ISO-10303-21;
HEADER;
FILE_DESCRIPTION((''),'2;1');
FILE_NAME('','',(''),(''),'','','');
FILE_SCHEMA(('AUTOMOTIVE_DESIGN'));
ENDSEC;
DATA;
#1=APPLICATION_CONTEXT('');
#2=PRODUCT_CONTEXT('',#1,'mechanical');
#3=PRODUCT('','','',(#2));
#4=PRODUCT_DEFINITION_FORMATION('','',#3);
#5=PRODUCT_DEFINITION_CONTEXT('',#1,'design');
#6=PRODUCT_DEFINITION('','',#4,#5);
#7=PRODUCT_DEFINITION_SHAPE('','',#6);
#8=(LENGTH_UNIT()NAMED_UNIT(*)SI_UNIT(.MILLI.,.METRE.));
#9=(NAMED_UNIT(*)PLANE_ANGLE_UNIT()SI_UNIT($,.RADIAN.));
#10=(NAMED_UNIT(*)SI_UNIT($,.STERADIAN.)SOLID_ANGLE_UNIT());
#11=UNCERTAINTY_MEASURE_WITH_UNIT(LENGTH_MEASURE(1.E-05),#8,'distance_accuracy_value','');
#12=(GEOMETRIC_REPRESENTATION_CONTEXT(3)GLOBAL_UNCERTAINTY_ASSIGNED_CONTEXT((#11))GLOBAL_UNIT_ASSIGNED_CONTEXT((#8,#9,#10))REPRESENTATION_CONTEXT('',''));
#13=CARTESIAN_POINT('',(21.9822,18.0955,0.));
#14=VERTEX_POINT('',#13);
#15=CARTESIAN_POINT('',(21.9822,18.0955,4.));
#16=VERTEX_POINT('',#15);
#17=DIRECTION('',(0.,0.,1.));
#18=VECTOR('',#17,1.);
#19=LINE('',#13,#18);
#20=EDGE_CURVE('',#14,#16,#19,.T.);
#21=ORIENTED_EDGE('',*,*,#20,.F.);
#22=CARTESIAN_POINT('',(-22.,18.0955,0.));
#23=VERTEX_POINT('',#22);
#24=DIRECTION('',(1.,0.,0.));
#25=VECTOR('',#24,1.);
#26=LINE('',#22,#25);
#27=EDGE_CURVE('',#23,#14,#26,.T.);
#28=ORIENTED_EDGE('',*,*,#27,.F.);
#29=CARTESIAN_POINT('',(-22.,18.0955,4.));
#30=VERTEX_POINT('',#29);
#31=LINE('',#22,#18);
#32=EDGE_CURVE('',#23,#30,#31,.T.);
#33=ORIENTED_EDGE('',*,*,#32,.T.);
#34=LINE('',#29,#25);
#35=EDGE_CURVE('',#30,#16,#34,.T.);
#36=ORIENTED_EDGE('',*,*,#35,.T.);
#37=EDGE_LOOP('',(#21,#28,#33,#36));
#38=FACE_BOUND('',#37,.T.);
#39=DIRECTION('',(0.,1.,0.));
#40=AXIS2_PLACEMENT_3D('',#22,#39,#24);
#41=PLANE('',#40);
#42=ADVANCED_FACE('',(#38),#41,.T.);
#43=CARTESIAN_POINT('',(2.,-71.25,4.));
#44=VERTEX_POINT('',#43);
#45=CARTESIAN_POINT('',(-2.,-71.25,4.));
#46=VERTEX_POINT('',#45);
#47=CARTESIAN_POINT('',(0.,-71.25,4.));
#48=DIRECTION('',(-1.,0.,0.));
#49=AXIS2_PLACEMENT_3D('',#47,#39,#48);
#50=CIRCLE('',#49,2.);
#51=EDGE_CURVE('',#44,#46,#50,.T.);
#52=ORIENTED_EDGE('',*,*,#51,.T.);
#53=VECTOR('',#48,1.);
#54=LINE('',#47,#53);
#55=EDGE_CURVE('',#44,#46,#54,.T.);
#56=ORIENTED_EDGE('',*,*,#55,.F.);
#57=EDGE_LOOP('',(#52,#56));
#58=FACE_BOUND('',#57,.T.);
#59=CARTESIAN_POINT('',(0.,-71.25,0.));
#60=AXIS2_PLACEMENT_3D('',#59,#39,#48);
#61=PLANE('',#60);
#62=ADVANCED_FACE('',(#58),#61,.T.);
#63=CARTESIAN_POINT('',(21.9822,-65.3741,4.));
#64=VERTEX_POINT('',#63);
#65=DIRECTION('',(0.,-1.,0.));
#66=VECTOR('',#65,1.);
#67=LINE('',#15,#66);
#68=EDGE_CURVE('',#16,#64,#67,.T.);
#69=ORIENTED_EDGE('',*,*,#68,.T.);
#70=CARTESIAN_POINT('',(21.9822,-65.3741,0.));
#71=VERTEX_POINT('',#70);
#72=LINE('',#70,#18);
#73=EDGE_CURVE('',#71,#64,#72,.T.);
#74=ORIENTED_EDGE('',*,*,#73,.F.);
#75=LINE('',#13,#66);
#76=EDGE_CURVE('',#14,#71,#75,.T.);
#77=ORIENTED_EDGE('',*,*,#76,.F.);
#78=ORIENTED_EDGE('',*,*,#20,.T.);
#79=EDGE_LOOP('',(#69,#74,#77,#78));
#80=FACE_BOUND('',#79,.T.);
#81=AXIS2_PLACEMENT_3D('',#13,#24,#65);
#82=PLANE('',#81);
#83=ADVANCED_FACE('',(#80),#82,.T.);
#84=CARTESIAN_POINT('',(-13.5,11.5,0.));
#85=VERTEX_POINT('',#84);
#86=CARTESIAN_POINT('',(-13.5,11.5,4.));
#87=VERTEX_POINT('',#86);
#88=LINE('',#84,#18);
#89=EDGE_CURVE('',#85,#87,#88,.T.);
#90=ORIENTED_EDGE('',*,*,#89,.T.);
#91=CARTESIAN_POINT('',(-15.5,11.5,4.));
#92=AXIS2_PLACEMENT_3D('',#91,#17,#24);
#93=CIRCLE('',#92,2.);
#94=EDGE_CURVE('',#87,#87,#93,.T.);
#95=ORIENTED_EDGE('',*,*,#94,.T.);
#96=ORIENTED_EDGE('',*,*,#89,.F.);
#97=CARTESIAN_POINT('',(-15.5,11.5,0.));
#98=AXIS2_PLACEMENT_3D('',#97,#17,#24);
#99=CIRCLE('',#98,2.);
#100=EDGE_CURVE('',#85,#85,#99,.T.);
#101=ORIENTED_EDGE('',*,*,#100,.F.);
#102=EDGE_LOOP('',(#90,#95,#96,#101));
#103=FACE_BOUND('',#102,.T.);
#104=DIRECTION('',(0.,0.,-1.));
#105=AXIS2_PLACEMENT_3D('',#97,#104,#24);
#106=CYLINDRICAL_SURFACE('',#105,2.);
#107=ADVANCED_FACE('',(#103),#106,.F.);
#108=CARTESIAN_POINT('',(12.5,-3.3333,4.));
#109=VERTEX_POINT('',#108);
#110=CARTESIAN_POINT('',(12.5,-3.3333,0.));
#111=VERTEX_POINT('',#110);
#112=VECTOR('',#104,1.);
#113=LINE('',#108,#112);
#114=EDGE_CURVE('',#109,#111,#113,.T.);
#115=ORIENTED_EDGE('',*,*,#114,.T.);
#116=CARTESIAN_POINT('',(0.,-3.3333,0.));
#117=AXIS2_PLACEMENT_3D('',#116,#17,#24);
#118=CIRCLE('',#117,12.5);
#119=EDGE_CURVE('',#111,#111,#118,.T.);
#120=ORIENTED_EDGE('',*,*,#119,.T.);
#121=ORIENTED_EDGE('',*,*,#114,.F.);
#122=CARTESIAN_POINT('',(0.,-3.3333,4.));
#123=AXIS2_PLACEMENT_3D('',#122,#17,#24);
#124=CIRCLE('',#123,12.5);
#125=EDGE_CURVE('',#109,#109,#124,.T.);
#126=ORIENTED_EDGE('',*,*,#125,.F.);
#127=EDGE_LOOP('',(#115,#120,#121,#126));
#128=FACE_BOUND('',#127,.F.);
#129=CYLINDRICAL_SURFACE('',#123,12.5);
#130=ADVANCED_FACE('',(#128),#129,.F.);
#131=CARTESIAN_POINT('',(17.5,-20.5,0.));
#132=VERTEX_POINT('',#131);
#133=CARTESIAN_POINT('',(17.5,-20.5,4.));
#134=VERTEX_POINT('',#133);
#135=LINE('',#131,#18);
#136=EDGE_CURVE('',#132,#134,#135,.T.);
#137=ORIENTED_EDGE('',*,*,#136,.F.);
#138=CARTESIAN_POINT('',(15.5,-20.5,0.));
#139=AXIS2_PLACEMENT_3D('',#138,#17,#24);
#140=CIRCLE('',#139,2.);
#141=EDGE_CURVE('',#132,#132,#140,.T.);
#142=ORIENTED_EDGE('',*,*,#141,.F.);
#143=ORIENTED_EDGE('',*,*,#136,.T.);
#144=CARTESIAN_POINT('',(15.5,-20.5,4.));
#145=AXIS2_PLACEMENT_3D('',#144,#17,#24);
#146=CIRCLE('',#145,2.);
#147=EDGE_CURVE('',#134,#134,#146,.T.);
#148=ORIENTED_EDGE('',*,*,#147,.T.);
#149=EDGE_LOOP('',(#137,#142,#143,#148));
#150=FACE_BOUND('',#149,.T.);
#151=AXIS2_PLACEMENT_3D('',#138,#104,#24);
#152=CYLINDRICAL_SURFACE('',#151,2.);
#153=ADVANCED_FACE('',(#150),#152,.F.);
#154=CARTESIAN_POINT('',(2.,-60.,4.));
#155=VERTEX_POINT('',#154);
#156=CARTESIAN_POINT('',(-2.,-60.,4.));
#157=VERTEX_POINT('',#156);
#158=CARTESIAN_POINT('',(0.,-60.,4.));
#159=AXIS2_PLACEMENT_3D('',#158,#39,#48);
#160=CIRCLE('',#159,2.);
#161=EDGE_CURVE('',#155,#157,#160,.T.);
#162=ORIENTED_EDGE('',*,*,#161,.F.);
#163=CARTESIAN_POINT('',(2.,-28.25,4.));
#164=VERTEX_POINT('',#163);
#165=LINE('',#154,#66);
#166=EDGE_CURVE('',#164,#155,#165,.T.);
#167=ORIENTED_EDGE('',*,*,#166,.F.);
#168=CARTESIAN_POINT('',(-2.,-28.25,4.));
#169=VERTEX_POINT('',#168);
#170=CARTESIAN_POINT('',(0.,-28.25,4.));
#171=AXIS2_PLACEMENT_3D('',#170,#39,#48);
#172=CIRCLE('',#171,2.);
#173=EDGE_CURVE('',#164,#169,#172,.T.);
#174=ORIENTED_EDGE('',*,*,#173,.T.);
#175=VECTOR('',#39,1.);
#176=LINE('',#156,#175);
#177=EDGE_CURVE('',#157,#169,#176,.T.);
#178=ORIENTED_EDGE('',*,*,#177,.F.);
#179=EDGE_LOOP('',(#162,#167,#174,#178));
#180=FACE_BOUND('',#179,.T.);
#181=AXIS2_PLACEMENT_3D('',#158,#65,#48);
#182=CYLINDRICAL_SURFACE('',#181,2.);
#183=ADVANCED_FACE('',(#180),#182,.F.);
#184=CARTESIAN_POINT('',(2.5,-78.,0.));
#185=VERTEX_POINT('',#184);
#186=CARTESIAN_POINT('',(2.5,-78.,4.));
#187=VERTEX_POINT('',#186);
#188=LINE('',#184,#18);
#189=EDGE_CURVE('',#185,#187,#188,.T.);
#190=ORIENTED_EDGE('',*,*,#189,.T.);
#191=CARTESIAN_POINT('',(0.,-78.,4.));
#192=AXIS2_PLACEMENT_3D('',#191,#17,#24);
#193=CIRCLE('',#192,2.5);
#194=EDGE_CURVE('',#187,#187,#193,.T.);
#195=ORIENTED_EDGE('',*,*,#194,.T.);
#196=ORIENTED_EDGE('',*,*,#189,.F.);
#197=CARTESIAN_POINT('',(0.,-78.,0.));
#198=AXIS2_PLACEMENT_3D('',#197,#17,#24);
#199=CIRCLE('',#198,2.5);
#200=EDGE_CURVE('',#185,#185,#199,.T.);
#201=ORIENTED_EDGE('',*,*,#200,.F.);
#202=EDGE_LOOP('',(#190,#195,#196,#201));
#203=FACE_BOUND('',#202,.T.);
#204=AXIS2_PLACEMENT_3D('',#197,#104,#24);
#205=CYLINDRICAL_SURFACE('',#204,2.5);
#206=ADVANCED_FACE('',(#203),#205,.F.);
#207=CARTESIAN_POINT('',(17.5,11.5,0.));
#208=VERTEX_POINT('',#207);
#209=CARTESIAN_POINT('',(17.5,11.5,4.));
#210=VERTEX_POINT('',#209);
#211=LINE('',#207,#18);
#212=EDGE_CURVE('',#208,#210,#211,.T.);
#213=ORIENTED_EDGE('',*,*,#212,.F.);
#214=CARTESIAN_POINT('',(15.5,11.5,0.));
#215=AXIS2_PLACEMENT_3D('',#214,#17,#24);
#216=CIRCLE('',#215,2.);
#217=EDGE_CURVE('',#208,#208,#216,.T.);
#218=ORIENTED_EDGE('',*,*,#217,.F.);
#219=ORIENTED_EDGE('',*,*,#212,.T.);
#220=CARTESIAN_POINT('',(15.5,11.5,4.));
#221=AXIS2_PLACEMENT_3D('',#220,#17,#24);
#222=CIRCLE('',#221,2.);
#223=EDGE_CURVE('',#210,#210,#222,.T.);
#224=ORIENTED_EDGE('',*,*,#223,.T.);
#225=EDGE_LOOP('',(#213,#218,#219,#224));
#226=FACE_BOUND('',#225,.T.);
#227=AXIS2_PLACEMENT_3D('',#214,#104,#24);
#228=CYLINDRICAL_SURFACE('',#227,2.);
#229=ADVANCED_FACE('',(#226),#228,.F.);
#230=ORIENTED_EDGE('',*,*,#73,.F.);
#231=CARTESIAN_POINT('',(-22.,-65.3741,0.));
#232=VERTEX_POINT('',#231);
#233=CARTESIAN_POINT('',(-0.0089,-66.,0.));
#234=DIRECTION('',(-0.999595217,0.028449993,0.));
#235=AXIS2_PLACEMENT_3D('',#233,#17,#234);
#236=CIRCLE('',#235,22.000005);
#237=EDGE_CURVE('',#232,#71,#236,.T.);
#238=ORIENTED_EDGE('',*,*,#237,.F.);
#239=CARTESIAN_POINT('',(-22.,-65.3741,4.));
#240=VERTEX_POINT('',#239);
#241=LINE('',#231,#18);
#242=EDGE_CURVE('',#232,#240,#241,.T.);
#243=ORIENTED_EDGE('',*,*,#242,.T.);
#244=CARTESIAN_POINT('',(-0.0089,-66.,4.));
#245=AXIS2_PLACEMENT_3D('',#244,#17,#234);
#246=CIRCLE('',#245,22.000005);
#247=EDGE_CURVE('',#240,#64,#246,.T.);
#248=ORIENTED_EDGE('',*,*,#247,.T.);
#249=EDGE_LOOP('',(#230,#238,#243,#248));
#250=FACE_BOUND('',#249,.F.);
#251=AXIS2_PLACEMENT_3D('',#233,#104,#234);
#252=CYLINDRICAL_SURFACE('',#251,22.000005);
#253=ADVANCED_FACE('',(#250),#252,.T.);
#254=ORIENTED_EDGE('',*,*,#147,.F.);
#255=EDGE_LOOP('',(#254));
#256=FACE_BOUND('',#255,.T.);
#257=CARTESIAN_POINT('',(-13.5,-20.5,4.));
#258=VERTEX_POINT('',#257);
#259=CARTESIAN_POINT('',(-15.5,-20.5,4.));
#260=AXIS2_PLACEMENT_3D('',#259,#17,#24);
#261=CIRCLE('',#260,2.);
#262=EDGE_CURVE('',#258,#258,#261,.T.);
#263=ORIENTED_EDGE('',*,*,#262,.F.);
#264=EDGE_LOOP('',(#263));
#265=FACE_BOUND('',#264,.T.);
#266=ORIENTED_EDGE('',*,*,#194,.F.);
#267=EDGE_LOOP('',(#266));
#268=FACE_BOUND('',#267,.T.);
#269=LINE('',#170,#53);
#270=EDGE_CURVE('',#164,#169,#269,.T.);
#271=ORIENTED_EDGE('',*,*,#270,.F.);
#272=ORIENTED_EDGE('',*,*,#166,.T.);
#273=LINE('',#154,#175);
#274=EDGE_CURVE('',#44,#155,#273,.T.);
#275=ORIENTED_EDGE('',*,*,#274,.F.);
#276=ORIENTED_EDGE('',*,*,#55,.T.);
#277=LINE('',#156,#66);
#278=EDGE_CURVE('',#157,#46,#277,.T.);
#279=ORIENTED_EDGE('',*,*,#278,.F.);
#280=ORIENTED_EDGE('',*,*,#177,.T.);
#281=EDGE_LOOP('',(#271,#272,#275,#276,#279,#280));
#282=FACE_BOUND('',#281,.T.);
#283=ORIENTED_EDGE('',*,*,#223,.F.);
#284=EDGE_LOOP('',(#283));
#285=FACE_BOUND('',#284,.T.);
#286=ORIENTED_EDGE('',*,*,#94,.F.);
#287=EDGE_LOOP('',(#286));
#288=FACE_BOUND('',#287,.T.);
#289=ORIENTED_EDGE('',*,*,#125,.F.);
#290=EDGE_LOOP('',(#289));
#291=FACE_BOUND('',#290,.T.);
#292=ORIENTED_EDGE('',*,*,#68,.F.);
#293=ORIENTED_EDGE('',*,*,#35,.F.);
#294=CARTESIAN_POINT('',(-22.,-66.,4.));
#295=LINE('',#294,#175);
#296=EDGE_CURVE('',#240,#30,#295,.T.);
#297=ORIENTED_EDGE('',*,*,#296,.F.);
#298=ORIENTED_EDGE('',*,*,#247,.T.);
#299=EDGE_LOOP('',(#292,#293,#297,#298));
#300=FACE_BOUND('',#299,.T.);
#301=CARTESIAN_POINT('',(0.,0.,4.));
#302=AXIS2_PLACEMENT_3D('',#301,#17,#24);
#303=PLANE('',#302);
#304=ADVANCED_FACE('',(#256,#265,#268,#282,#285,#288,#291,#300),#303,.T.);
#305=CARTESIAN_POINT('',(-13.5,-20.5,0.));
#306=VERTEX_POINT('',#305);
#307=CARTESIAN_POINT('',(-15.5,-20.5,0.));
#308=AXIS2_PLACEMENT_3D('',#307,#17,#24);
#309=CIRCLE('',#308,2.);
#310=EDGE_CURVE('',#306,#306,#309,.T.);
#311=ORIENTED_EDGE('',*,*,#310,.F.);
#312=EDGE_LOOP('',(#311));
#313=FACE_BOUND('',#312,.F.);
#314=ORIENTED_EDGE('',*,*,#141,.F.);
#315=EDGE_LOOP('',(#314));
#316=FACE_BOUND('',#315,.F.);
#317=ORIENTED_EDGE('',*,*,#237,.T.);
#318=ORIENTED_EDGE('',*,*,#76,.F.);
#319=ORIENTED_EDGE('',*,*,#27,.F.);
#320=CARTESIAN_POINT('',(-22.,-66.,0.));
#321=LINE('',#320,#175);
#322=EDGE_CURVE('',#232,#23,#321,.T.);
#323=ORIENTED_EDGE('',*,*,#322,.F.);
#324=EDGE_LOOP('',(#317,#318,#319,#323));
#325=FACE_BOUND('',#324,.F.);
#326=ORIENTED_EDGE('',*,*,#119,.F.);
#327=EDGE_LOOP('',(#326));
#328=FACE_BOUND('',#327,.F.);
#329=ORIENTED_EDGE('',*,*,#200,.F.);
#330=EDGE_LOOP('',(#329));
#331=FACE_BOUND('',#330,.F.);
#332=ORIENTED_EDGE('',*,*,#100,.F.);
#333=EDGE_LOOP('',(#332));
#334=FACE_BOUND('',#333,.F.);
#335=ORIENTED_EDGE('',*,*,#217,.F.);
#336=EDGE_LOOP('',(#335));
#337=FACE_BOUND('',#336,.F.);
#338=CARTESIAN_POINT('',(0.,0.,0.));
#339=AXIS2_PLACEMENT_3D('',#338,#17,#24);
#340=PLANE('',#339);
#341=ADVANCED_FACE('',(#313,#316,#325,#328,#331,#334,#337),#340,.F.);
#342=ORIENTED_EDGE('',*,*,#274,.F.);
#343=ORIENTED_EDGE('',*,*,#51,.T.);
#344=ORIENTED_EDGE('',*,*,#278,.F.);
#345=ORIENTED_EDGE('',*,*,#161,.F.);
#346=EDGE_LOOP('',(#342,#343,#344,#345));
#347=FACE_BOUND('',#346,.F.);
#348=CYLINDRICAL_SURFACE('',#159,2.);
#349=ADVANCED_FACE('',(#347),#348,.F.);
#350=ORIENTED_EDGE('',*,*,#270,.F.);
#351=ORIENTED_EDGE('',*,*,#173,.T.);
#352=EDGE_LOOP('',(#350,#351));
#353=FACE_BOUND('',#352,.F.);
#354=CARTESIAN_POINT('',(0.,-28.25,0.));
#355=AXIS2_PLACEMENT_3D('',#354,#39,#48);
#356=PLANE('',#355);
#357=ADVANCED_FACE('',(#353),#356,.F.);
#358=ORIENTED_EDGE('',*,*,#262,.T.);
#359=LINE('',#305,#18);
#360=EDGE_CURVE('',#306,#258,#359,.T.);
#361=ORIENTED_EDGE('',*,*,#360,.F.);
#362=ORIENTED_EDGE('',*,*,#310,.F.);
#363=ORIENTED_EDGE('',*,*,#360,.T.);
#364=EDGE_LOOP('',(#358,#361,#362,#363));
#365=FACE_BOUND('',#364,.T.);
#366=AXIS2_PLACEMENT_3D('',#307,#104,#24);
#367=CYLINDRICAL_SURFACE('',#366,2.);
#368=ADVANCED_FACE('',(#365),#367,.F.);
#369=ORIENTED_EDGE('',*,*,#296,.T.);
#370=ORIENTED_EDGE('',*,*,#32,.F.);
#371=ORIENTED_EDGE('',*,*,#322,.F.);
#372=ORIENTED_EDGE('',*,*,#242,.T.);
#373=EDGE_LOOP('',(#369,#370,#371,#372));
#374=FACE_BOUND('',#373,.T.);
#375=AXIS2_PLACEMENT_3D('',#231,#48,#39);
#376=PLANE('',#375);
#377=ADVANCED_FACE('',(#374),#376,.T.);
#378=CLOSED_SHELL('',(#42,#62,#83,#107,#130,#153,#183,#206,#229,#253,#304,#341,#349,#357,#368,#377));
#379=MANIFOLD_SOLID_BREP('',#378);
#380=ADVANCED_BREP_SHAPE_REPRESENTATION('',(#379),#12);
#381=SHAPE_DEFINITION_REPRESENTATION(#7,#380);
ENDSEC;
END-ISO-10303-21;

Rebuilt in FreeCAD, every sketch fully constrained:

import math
import FreeCAD as App
import Part
import Sketcher
from FreeCAD import Vector
Q = App.Units.Quantity

doc = App.newDocument("Part")
body = doc.addObject("PartDesign::Body", "Body")

# Sketch on XY plane
sketch1 = doc.addObject("Sketcher::SketchObject", "Sketch")
body.addObject(sketch1)
sketch1.AttachmentSupport = (doc.XY_Plane, [""])
sketch1.MapMode = "FlatFace"
sketch1.addGeometry(Part.LineSegment(Vector(22, 18, 0), Vector(-22, 18, 0)), False)
sketch1.addGeometry(Part.LineSegment(Vector(-22, 18, 0), Vector(-22, -65, 0)), False)
sketch1.addGeometry(Part.ArcOfCircle(Part.Circle(Vector(0, -66, 0), Vector(0, 0, 1), 22), math.radians(178), math.radians(362)), False)
sketch1.addGeometry(Part.LineSegment(Vector(22, -65, 0), Vector(22, 18, 0)), False)
sketch1.addConstraint(Sketcher.Constraint("Coincident", 0, 2, 1, 1))
sketch1.addConstraint(Sketcher.Constraint("Coincident", 1, 2, 2, 1))
sketch1.addConstraint(Sketcher.Constraint("Coincident", 2, 2, 3, 1))
sketch1.addConstraint(Sketcher.Constraint("Coincident", 3, 2, 0, 1))
sketch1.addConstraint(Sketcher.Constraint("Horizontal", 0))
sketch1.addConstraint(Sketcher.Constraint("Vertical", 1))
sketch1.addConstraint(Sketcher.Constraint("Vertical", 3))
sketch1.addConstraint(Sketcher.Constraint("Horizontal", 1, 2, 2, 2))
sketch1.addConstraint(Sketcher.Constraint("Radius", 2, Q("22 mm")))
sketch1.addConstraint(Sketcher.Constraint("DistanceY", 2, 3, -1, 1, Q("66 mm")))
sketch1.addConstraint(Sketcher.Constraint("DistanceX", 0, 2, -1, 1, Q("22 mm")))
sketch1.addConstraint(Sketcher.Constraint("DistanceX", 0, 2, 0, 1, Q("43.9822 mm")))
sketch1.addConstraint(Sketcher.Constraint("DistanceY", 1, 2, 1, 1, Q("83.4696 mm")))
pad1 = doc.addObject("PartDesign::Pad", "Pad")
body.addObject(pad1)
pad1.Profile = sketch1
pad1.Length = 4

# Sketch on XY plane
sketch2 = doc.addObject("Sketcher::SketchObject", "Sketch001")
body.addObject(sketch2)
sketch2.AttachmentSupport = (doc.XY_Plane, [""])
sketch2.MapMode = "FlatFace"
sketch2.addGeometry(Part.Circle(Vector(-15.5, 11.5, 0), Vector(0, 0, 1), 2), False)
sketch2.addGeometry(Part.Circle(Vector(15.5, 11.5, 0), Vector(0, 0, 1), 2), False)
sketch2.addGeometry(Part.Circle(Vector(-15.5, -20.5, 0), Vector(0, 0, 1), 2), False)
sketch2.addGeometry(Part.Circle(Vector(15.5, -20.5, 0), Vector(0, 0, 1), 2), False)
sketch2.addConstraint(Sketcher.Constraint("Equal", 0, 1))
sketch2.addConstraint(Sketcher.Constraint("Equal", 1, 2))
sketch2.addConstraint(Sketcher.Constraint("Equal", 2, 3))
sketch2.addConstraint(Sketcher.Constraint("Symmetric", 0, 3, 1, 3, -2))
sketch2.addConstraint(Sketcher.Constraint("Symmetric", 2, 3, 3, 3, -2))
sketch2.addConstraint(Sketcher.Constraint("Vertical", 0, 3, 2, 3))
sketch2.addConstraint(Sketcher.Constraint("Diameter", 0, Q("4 mm")))
sketch2.addConstraint(Sketcher.Constraint("DistanceX", 0, 3, 1, 3, Q("31 mm")))
sketch2.addConstraint(Sketcher.Constraint("DistanceY", 2, 3, 0, 3, Q("32 mm")))
sketch2.addConstraint(Sketcher.Constraint("DistanceY", -1, 1, 0, 3, Q("11.5 mm")))
pocket1 = doc.addObject("PartDesign::Pocket", "Pocket")
body.addObject(pocket1)
pocket1.Profile = sketch2
pocket1.Length = 4
pocket1.Reversed = True

# Sketch on XY plane
sketch3 = doc.addObject("Sketcher::SketchObject", "Sketch002")
body.addObject(sketch3)
sketch3.AttachmentSupport = (doc.XY_Plane, [""])
sketch3.MapMode = "FlatFace"
sketch3.addGeometry(Part.Circle(Vector(0, -78, 0), Vector(0, 0, 1), 2.5), False)
sketch3.addConstraint(Sketcher.Constraint("PointOnObject", 0, 3, -2))
sketch3.addConstraint(Sketcher.Constraint("Diameter", 0, Q("5 mm")))
sketch3.addConstraint(Sketcher.Constraint("DistanceY", 0, 3, -1, 1, Q("78 mm")))
pocket2 = doc.addObject("PartDesign::Pocket", "Pocket001")
body.addObject(pocket2)
pocket2.Profile = sketch3
pocket2.Length = 4
pocket2.Reversed = True

# Sketch on XZ plane
sketch4 = doc.addObject("Sketcher::SketchObject", "Sketch003")
body.addObject(sketch4)
sketch4.AttachmentSupport = (doc.XZ_Plane, [""])
sketch4.MapMode = "FlatFace"
sketch4.AttachmentOffset = App.Placement(Vector(0, 0, 60), App.Rotation())
sketch4.addGeometry(Part.Circle(Vector(0, 4, 0), Vector(0, 0, 1), 2), False)
sketch4.addConstraint(Sketcher.Constraint("PointOnObject", 0, 3, -2))
sketch4.addConstraint(Sketcher.Constraint("Diameter", 0, Q("4 mm")))
sketch4.addConstraint(Sketcher.Constraint("DistanceY", -1, 1, 0, 3, Q("4 mm")))
pocket3 = doc.addObject("PartDesign::Pocket", "Pocket002")
body.addObject(pocket3)
pocket3.Profile = sketch4
pocket3.Type = "TwoLengths"
pocket3.Length = 31.75
pocket3.Length2 = 11.25

# Sketch on XY plane
sketch5 = doc.addObject("Sketcher::SketchObject", "Sketch004")
body.addObject(sketch5)
sketch5.AttachmentSupport = (doc.XY_Plane, [""])
sketch5.MapMode = "FlatFace"
sketch5.AttachmentOffset = App.Placement(Vector(0, 0, 4), App.Rotation())
sketch5.addGeometry(Part.Circle(Vector(0, -3, 0), Vector(0, 0, 1), 12), False)
sketch5.addConstraint(Sketcher.Constraint("PointOnObject", 0, 3, -2))
sketch5.addConstraint(Sketcher.Constraint("Diameter", 0, Q("25 mm")))
sketch5.addConstraint(Sketcher.Constraint("DistanceY", 0, 3, -1, 1, Q("3.3333 mm")))
pocket4 = doc.addObject("PartDesign::Pocket", "Pocket003")
body.addObject(pocket4)
pocket4.Profile = sketch5
pocket4.Length = 4

doc.recompute()
